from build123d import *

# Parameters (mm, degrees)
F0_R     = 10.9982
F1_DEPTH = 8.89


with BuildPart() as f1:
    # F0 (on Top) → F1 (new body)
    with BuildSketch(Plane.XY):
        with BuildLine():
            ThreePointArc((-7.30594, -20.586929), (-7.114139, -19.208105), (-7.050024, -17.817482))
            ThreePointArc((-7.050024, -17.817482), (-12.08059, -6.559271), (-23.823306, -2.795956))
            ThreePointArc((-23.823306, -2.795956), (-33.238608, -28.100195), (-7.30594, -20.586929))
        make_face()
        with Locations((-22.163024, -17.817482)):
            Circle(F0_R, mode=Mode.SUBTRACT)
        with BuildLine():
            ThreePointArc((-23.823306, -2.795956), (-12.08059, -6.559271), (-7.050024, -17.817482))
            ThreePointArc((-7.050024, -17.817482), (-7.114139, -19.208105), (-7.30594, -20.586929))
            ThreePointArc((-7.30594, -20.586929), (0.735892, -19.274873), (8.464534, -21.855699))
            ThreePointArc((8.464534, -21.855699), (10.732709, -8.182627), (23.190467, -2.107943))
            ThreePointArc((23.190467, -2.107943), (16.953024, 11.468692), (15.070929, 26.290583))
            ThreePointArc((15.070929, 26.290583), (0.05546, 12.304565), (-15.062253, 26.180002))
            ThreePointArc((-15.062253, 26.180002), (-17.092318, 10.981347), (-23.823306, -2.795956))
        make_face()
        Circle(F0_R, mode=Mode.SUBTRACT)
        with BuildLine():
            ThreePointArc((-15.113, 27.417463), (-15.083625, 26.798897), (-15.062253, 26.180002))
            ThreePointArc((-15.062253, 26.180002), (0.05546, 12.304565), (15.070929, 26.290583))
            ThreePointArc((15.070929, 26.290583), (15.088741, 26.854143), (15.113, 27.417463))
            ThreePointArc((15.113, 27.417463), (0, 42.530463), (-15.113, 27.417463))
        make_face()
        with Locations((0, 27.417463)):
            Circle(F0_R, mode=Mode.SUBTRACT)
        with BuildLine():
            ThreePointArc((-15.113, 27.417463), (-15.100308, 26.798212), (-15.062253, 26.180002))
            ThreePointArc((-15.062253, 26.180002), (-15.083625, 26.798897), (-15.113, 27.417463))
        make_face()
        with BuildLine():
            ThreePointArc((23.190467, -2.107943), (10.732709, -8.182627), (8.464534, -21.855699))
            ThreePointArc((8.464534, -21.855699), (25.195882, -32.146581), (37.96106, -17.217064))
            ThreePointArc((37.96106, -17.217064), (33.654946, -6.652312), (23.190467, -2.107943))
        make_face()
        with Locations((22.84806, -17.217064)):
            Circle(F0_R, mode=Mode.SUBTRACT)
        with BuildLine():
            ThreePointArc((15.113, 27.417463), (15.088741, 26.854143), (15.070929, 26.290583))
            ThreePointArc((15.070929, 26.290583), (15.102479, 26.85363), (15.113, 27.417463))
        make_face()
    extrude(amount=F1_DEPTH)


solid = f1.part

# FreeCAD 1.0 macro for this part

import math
import FreeCAD as App
import Part
import Sketcher
from FreeCAD import Vector
Q = App.Units.Quantity

doc = App.newDocument("Part")
body = doc.addObject("PartDesign::Body", "Body")

# Sketch on XY plane
sketch1 = doc.addObject("Sketcher::SketchObject", "Sketch")
body.addObject(sketch1)
sketch1.AttachmentSupport = (doc.XY_Plane, [""])
sketch1.MapMode = "FlatFace"
sketch1.addGeometry([
    Part.ArcOfCircle(Part.Circle(Vector(-22.163023, -17.817482, 0), Vector(0, 0, 1), 15.113), math.radians(96.307125), math.radians(349.440917)),  # 0
    Part.ArcOfCircle(Part.Circle(Vector(-0.627385, -36.220056, 0), Vector(0, 0, 1), 16.999934), math.radians(57.668235), math.radians(113.13243)),  # 1
    Part.ArcOfCircle(Part.Circle(Vector(22.84806, -17.217063, 0), Vector(0, 0, 1), 15.113), math.radians(-162.125675), math.radians(-0.000002)),  # 2
    Part.ArcOfCircle(Part.Circle(Vector(22.848059, -17.217064, 0), Vector(0, 0, 1), 15.113001), math.radians(0.000001), math.radians(88.701768)),  # 3
    Part.ArcOfCircle(Part.Circle(Vector(64.334157, 25.015625, 0), Vector(0, 0, 1), 49.279724), math.radians(178.517486), math.radians(213.39447)),  # 4
    Part.ArcOfCircle(Part.Circle(Vector(0.00073, 27.41744, 0), Vector(0, 0, 1), 15.11227), math.radians(-4.276269), math.radians(0.000087)),  # 5
    Part.ArcOfCircle(Part.Circle(Vector(0, 27.417463, 0), Vector(0, 0, 1), 15.113), math.radians(0), math.radians(180)),  # 6
    Part.ArcOfCircle(Part.Circle(Vector(-0.000056, 27.417458, 0), Vector(0, 0, 1), 15.112944), math.radians(179.999982), math.radians(184.696668)),  # 7
    Part.ArcOfCircle(Part.Circle(Vector(-62.918681, 24.83722, 0), Vector(0, 0, 1), 47.875263), math.radians(-35.253222), math.radians(1.607215)),  # 8
    Part.Circle(Vector(-22.163024, -17.817482, 0), Vector(0, 0, 1), 10.9982),  # 9
    Part.Circle(Vector(0, 0, 0), Vector(0, 0, 1), 10.9982),  # 10
    Part.Circle(Vector(22.84806, -17.217064, 0), Vector(0, 0, 1), 10.9982),  # 11
    Part.Circle(Vector(0, 27.417463, 0), Vector(0, 0, 1), 10.9982),  # 12
], False)
sketch1.addConstraint([
    Sketcher.Constraint("Coincident", 0, 2, 1, 2),
    Sketcher.Constraint("Coincident", 1, 1, 2, 1),
    Sketcher.Constraint("Coincident", 2, 2, 3, 1),
    Sketcher.Constraint("Coincident", 3, 2, 4, 2),
    Sketcher.Constraint("Coincident", 4, 1, 5, 1),
    Sketcher.Constraint("Coincident", 5, 2, 6, 1),
    Sketcher.Constraint("Coincident", 6, 2, 7, 1),
    Sketcher.Constraint("Coincident", 7, 2, 8, 2),
    Sketcher.Constraint("Coincident", 8, 1, 0, 1),
    Sketcher.Constraint("Coincident", 10, 3, -1, 1),
    Sketcher.Constraint("Coincident", 3, 3, 2, 3),
    Sketcher.Constraint("Coincident", 9, 3, 0, 3),
    Sketcher.Constraint("Coincident", 11, 3, 2, 3),
    Sketcher.Constraint("Coincident", 12, 3, 6, 3),
    Sketcher.Constraint("PointOnObject", 6, 3, -2),
    Sketcher.Constraint("Diameter", 9, Q("0.866 in")),
    Sketcher.Constraint("Diameter", 10, Q("0.866 in")),
    Sketcher.Constraint("Diameter", 11, Q("0.866 in")),
    Sketcher.Constraint("Diameter", 12, Q("0.866 in")),
    Sketcher.Constraint("Radius", 0, Q("0.595 in")),
    Sketcher.Constraint("Radius", 2, Q("0.595 in")),
    Sketcher.Constraint("Radius", 6, Q("0.595 in")),
    Sketcher.Constraint("Radius", 5, Q("15.11227 mm")),
    Sketcher.Constraint("DistanceX", 7, 2, 7, 3, Q("0.5929999 in")),
    Sketcher.Constraint("Radius", 1, Q("16.999934 mm")),
    Sketcher.Constraint("Radius", 4, Q("49.279724 mm")),
    Sketcher.Constraint("Radius", 7, Q("15.112944 mm")),
    Sketcher.Constraint("Radius", 8, Q("47.875263 mm")),
    Sketcher.Constraint("DistanceY", 1, 1, -1, 1, Q("21.855699 mm")),
    Sketcher.Constraint("DistanceY", 0, 3, 8, 3, Q("42.654702 mm")),
    Sketcher.Constraint("DistanceX", 0, 2, 3, 3, Q("30.153999 mm")),
    Sketcher.Constraint("DistanceX", 5, 3, 4, 1, Q("15.070199 mm")),
    Sketcher.Constraint("DistanceY", 0, 3, -1, 1, Q("17.817482 mm")),
    Sketcher.Constraint("DistanceX", -1, 1, 2, 3, Q("22.84806 mm")),
    Sketcher.Constraint("DistanceY", -1, 1, 5, 3, Q("27.41744 mm")),
    Sketcher.Constraint("DistanceY", -1, 1, 7, 3, Q("27.417458 mm")),
    Sketcher.Constraint("DistanceY", 0, 2, -1, 1, Q("20.586929 mm")),
    Sketcher.Constraint("DistanceX", 0, 3, 1, 3, Q("21.535638 mm")),
    Sketcher.Constraint("DistanceY", 2, 3, 4, 3, Q("42.232688 mm")),
    Sketcher.Constraint("DistanceY", 1, 3, 6, 3, Q("63.637519 mm")),
    Sketcher.Constraint("DistanceY", 2, 2, 3, 2, Q("15.109121 mm")),
    Sketcher.Constraint("DistanceY", 4, 1, 5, 2, Q("1.12688 mm")),
    Sketcher.Constraint("DistanceY", 4, 1, 6, 2, Q("1.12688 mm")),
])
pad1 = doc.addObject("PartDesign::Pad", "Pad")
body.addObject(pad1)
pad1.Profile = sketch1
pad1.Length = Q("0.35 in")

doc.recompute()
